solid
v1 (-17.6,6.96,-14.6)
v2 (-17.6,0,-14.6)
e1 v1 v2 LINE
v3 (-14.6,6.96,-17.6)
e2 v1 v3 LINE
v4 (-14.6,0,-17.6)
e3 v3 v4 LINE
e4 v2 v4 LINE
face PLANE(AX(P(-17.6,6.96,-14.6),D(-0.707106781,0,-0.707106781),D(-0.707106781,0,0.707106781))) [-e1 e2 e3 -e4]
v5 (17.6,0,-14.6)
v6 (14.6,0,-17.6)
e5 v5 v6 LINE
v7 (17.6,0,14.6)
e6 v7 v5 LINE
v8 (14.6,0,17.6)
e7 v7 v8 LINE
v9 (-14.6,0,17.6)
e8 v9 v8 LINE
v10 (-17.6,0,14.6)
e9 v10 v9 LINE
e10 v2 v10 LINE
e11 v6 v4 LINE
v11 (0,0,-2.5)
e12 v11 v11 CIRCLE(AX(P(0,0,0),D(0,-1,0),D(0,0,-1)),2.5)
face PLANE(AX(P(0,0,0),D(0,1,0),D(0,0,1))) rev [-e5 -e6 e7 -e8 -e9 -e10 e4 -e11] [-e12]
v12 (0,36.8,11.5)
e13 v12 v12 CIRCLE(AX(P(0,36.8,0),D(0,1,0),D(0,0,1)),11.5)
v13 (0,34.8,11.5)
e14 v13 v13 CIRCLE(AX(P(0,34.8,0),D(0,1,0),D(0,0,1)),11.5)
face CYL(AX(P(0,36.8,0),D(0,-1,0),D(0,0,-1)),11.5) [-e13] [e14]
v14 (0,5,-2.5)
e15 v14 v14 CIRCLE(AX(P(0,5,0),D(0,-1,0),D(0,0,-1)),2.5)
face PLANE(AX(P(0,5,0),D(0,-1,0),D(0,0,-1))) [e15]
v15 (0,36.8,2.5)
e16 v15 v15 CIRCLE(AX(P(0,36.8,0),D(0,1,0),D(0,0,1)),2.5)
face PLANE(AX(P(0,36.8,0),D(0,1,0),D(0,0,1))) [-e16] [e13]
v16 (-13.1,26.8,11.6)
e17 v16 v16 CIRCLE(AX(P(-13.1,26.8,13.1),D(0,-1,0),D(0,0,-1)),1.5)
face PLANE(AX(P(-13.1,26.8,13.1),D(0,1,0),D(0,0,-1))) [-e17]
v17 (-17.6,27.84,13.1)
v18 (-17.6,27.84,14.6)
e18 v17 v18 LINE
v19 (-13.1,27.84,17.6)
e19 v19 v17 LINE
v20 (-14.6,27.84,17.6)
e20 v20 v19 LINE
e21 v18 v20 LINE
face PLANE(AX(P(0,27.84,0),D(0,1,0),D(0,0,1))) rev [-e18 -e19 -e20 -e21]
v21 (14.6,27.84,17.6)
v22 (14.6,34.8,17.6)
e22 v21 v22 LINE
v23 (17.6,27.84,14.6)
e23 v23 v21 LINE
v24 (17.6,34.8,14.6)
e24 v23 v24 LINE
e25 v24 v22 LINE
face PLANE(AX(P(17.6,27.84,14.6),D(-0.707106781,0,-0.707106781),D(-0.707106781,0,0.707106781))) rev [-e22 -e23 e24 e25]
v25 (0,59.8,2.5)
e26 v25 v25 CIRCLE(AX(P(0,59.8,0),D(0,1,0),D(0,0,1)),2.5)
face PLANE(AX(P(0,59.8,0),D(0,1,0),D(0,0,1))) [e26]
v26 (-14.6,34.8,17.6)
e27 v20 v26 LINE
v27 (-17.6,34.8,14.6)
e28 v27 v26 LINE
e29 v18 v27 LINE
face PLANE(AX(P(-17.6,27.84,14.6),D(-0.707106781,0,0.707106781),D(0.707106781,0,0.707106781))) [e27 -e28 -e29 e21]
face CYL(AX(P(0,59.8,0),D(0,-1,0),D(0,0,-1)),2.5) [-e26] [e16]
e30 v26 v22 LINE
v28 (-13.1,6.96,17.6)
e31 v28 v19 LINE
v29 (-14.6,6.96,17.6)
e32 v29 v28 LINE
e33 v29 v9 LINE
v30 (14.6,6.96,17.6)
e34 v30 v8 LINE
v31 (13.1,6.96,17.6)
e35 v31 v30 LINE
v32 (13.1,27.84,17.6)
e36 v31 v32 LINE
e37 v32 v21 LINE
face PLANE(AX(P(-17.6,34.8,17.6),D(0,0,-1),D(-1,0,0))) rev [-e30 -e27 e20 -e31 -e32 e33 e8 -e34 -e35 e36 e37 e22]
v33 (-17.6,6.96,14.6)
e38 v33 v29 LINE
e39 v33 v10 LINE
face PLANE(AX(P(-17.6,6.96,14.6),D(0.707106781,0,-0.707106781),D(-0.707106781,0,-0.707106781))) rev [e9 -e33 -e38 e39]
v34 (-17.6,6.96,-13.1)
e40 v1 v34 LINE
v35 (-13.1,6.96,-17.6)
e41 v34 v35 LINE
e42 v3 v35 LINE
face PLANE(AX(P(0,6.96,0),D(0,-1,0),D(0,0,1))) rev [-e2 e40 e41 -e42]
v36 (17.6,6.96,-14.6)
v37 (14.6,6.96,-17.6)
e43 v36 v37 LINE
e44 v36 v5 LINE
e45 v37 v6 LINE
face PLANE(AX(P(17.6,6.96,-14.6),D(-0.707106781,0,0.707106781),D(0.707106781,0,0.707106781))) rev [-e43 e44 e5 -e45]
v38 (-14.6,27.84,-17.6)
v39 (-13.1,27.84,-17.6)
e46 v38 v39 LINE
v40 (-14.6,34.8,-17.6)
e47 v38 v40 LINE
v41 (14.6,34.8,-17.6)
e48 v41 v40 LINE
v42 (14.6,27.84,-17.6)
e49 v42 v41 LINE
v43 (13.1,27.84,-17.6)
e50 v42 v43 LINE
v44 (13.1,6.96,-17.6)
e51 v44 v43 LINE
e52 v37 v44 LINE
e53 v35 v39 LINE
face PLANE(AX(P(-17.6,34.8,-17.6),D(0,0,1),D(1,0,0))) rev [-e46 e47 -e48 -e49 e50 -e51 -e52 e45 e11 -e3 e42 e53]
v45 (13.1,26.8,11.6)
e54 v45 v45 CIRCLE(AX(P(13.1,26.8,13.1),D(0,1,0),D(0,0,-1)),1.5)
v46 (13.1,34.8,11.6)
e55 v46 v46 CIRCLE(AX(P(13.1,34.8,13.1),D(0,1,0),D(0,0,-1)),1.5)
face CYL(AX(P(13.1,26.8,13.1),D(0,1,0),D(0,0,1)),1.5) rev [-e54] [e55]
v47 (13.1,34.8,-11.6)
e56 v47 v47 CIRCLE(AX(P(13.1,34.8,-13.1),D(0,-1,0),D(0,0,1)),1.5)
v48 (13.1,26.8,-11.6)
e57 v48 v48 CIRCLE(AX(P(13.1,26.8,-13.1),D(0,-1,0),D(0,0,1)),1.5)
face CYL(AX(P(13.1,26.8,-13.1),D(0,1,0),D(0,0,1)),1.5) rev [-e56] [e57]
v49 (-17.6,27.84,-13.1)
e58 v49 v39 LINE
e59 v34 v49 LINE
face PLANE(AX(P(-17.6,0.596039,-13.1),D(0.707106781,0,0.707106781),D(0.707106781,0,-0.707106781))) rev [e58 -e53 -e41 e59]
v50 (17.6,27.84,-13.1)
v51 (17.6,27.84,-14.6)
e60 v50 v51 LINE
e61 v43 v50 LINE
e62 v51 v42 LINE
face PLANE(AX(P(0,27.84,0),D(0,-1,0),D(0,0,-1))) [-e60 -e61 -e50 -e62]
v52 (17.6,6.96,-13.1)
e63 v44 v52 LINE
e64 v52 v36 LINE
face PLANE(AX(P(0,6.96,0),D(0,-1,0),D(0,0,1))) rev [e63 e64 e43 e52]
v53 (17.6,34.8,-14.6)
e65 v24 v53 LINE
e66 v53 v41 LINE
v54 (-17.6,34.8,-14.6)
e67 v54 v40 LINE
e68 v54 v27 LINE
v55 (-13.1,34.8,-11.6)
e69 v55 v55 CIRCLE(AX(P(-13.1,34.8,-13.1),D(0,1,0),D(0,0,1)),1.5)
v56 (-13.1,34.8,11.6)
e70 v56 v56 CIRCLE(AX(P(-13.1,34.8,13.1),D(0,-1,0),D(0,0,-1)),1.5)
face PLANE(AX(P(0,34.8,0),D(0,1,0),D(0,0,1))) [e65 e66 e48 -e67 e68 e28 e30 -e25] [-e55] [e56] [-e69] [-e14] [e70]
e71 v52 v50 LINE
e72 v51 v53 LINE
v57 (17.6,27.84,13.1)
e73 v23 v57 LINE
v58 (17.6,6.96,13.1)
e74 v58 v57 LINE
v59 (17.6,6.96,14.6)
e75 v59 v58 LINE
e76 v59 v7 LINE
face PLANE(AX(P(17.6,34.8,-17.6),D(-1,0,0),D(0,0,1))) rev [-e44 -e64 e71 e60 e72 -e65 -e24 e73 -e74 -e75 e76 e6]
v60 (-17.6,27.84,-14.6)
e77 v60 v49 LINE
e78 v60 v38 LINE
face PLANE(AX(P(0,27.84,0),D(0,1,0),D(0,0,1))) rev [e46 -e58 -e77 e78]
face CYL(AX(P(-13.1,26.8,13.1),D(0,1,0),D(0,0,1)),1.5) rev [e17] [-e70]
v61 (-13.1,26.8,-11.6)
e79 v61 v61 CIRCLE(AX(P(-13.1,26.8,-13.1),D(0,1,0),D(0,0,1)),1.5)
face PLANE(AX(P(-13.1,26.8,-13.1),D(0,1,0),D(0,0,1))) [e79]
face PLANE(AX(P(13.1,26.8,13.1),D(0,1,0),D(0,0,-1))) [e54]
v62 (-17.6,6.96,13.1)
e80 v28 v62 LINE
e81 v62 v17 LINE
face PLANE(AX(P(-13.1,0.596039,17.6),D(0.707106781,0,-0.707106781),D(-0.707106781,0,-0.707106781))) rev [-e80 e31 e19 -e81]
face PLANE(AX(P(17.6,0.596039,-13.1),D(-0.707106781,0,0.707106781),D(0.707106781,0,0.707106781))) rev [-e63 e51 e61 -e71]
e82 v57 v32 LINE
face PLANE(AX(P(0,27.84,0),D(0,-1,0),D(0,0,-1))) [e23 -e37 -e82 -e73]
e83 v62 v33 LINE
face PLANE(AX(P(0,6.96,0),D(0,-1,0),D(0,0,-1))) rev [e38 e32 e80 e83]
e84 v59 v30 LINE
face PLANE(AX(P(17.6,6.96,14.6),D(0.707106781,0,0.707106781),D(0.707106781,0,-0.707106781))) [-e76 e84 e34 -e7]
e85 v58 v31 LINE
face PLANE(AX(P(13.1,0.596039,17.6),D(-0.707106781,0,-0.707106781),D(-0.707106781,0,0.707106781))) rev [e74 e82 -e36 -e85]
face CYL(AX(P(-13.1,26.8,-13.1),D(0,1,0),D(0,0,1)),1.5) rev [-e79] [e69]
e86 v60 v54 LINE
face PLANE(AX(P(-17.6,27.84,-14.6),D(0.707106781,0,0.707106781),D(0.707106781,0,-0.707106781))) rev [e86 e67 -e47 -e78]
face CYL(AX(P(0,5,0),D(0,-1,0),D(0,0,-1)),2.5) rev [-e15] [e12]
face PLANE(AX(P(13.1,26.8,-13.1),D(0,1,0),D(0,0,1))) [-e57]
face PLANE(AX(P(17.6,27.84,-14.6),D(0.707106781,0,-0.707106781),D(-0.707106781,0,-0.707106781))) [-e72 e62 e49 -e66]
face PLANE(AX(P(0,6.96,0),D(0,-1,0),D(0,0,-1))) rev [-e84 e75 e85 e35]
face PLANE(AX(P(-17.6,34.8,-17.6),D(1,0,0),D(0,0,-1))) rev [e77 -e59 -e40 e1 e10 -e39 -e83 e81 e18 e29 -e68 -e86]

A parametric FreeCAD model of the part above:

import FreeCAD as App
import Part
import Sketcher


def add_polygon(sketch, points):
    """Adds a closed chain of lines whose ends are joined by coincident constraints."""
    first, n = sketch.GeometryCount, len(points)
    for a, b in zip(points, points[1:] + points[:1]):
        sketch.addGeometry(Part.LineSegment(App.Vector(*a, 0), App.Vector(*b, 0)), False)
    for i in range(n):
        sketch.addConstraint(Sketcher.Constraint("Coincident", first + i, 2, first + (i + 1) % n, 1))

doc = App.newDocument("Part")
body = doc.addObject("PartDesign::Body", "Body")

sketch1 = body.newObject("Sketcher::SketchObject", "Sketch")
sketch1.AttachmentSupport = (doc.getObject("XZ_Plane"), [""])
sketch1.MapMode = "FlatFace"
add_polygon(sketch1, [(-18, -18), (-18, 18), (18, 18), (18, -18)])
sketch1.addConstraint([
    Sketcher.Constraint("Vertical", 0),
    Sketcher.Constraint("Horizontal", 1),
    Sketcher.Constraint("Vertical", 2),
    Sketcher.Constraint("Horizontal", 3),
    Sketcher.Constraint("Symmetric", 0, 2, 2, 2, -1, 1),
    Sketcher.Constraint("Equal", 3, 0),
    Sketcher.Constraint("DistanceX", 1, 1, 1, 2, 35.2),
])
pad1 = body.newObject("PartDesign::Pad", "Pad")
pad1.Profile = sketch1
pad1.Length = 34.8
pad1.Reversed = True

sketch2 = body.newObject("Sketcher::SketchObject", "Sketch001")
sketch2.AttachmentSupport = (doc.getObject("XZ_Plane"), [""])
sketch2.MapMode = "FlatFace"
sketch2.AttachmentOffset = App.Placement(App.Vector(0, 0, -34.8), App.Rotation())
sketch2.addGeometry(Part.Circle(App.Vector(0, 0, 0), App.Vector(0, 0, 1), 12), False)
sketch2.addConstraint([
    Sketcher.Constraint("Coincident", 0, 3, -1, 1),
    Sketcher.Constraint("Diameter", 0, 23.0),
])
pad2 = body.newObject("PartDesign::Pad", "Pad001")
pad2.Profile = sketch2
pad2.Length = 2
pad2.Reversed = True

sketch3 = body.newObject("Sketcher::SketchObject", "Sketch002")
sketch3.AttachmentSupport = (doc.getObject("XZ_Plane"), [""])
sketch3.MapMode = "FlatFace"
sketch3.AttachmentOffset = App.Placement(App.Vector(0, 0, -36.8), App.Rotation())
sketch3.addGeometry(Part.Circle(App.Vector(0, 0, 0), App.Vector(0, 0, 1), 2.5), False)
sketch3.addConstraint([
    Sketcher.Constraint("Coincident", 0, 3, -1, 1),
    Sketcher.Constraint("Diameter", 0, 5.0),
])
pad3 = body.newObject("PartDesign::Pad", "Pad002")
pad3.Profile = sketch3
pad3.Length = 23
pad3.Reversed = True

sketch4 = body.newObject("Sketcher::SketchObject", "Sketch003")
sketch4.AttachmentSupport = (doc.getObject("XZ_Plane"), [""])
sketch4.MapMode = "FlatFace"
sketch4.AttachmentOffset = App.Placement(App.Vector(0, 0, -34.8), App.Rotation())
sketch4.addGeometry(Part.Circle(App.Vector(-13.1, -13.1, 0), App.Vector(0, 0, 1), 1.5), False)
sketch4.addConstraint([
    Sketcher.Constraint("Diameter", 0, 3.0),
    Sketcher.Constraint("DistanceX", 0, 3, -1, 1, 13.1),
    Sketcher.Constraint("DistanceY", 0, 3, -1, 1, 13.1),
])
pocket1 = body.newObject("PartDesign::Pocket", "Pocket")
pocket1.Profile = sketch4
pocket1.Length = 8
pocket1.Reversed = True
doc.recompute()

mirrored = body.newObject("PartDesign::Mirrored", "Mirrored")
mirrored.Originals = [pocket1]
mirrored.MirrorPlane = (doc.getObject("YZ_Plane"), [""])
body.Tip = mirrored
doc.recompute()

mirrored2 = body.newObject("PartDesign::Mirrored", "Mirrored001")
mirrored2.Originals = [pocket1]
mirrored2.MirrorPlane = (doc.getObject("XY_Plane"), [""])
body.Tip = mirrored2

sketch5 = body.newObject("Sketcher::SketchObject", "Sketch004")
sketch5.AttachmentSupport = (doc.getObject("XZ_Plane"), [""])
sketch5.MapMode = "FlatFace"
sketch5.AttachmentOffset = App.Placement(App.Vector(0, 0, -34.8), App.Rotation())
sketch5.addGeometry(Part.Circle(App.Vector(13.1, 13.1, 0), App.Vector(0, 0, 1), 1.5), False)
sketch5.addConstraint([
    Sketcher.Constraint("Diameter", 0, 3.0),
    Sketcher.Constraint("DistanceX", -1, 1, 0, 3, 13.1),
    Sketcher.Constraint("DistanceY", -1, 1, 0, 3, 13.1),
])
pocket2 = body.newObject("PartDesign::Pocket", "Pocket001")
pocket2.Profile = sketch5
pocket2.Length = 8
pocket2.Reversed = True

sketch6 = body.newObject("Sketcher::SketchObject", "Sketch005")
sketch6.AttachmentSupport = (doc.getObject("XZ_Plane"), [""])
sketch6.MapMode = "FlatFace"
sketch6.AttachmentOffset = App.Placement(App.Vector(0, 0, -34.8), App.Rotation())
add_polygon(sketch6, [(-14.6, -17.6), (-17.6, -17.6), (-17.6, -14.6)])
sketch6.addConstraint([
    Sketcher.Constraint("Horizontal", 0),
    Sketcher.Constraint("Vertical", 1),
    Sketcher.Constraint("Equal", 0, 1),
    Sketcher.Constraint("DistanceX", 0, 2, 0, 1, 3.0),
    Sketcher.Constraint("DistanceX", 0, 2, -1, 1, 17.6),
    Sketcher.Constraint("DistanceY", 0, 2, -1, 1, 17.6),
])
pocket3 = body.newObject("PartDesign::Pocket", "Pocket002")
pocket3.Profile = sketch6
pocket3.Length = 6.96
pocket3.Reversed = True
doc.recompute()

mirrored3 = body.newObject("PartDesign::Mirrored", "Mirrored002")
mirrored3.Originals = [pocket3]
mirrored3.MirrorPlane = (doc.getObject("YZ_Plane"), [""])
body.Tip = mirrored3
doc.recompute()

mirrored4 = body.newObject("PartDesign::Mirrored", "Mirrored003")
mirrored4.Originals = [pocket3]
mirrored4.MirrorPlane = (doc.getObject("XY_Plane"), [""])
body.Tip = mirrored4

sketch7 = body.newObject("Sketcher::SketchObject", "Sketch006")
sketch7.AttachmentSupport = (doc.getObject("XZ_Plane"), [""])
sketch7.MapMode = "FlatFace"
sketch7.AttachmentOffset = App.Placement(App.Vector(0, 0, -34.8), App.Rotation())
add_polygon(sketch7, [(14.6, 17.6), (17.6, 17.6), (17.6, 14.6)])
sketch7.addConstraint([
    Sketcher.Constraint("Horizontal", 0),
    Sketcher.Constraint("Vertical", 1),
    Sketcher.Constraint("Equal", 0, 1),
    Sketcher.Constraint("DistanceX", 0, 1, 0, 2, 3.0),
    Sketcher.Constraint("DistanceX", -1, 1, 0, 2, 17.6),
    Sketcher.Constraint("DistanceY", -1, 1, 0, 2, 17.6),
])
pocket4 = body.newObject("PartDesign::Pocket", "Pocket003")
pocket4.Profile = sketch7
pocket4.Length = 6.96
pocket4.Reversed = True

sketch8 = body.newObject("Sketcher::SketchObject", "Sketch007")
sketch8.AttachmentSupport = (doc.getObject("XZ_Plane"), [""])
sketch8.MapMode = "FlatFace"
add_polygon(sketch8, [(-14.6, 17.6), (-17.6, 17.6), (-17.6, 14.6)])
sketch8.addConstraint([
    Sketcher.Constraint("Horizontal", 0),
    Sketcher.Constraint("Vertical", 1),
    Sketcher.Constraint("Equal", 0, 1),
    Sketcher.Constraint("DistanceX", 0, 2, 0, 1, 3.0),
    Sketcher.Constraint("DistanceX", 0, 2, -1, 1, 17.6),
    Sketcher.Constraint("DistanceY", -1, 1, 0, 2, 17.6),
])
pocket5 = body.newObject("PartDesign::Pocket", "Pocket004")
pocket5.Profile = sketch8
pocket5.Length = 6.96
doc.recompute()

mirrored5 = body.newObject("PartDesign::Mirrored", "Mirrored004")
mirrored5.Originals = [pocket5]
mirrored5.MirrorPlane = (doc.getObject("YZ_Plane"), [""])
body.Tip = mirrored5
doc.recompute()

mirrored6 = body.newObject("PartDesign::Mirrored", "Mirrored005")
mirrored6.Originals = [pocket5]
mirrored6.MirrorPlane = (doc.getObject("XY_Plane"), [""])
body.Tip = mirrored6

sketch9 = body.newObject("Sketcher::SketchObject", "Sketch008")
sketch9.AttachmentSupport = (doc.getObject("XZ_Plane"), [""])
sketch9.MapMode = "FlatFace"
add_polygon(sketch9, [(14.6, -17.6), (17.6, -17.6), (17.6, -14.6)])
sketch9.addConstraint([
    Sketcher.Constraint("Horizontal", 0),
    Sketcher.Constraint("Vertical", 1),
    Sketcher.Constraint("Equal", 0, 1),
    Sketcher.Constraint("DistanceX", 0, 1, 0, 2, 3.0),
    Sketcher.Constraint("DistanceX", -1, 1, 0, 2, 17.6),
    Sketcher.Constraint("DistanceY", 0, 2, -1, 1, 17.6),
])
pocket6 = body.newObject("PartDesign::Pocket", "Pocket005")
pocket6.Profile = sketch9
pocket6.Length = 6.96

sketch10 = body.newObject("Sketcher::SketchObject", "Sketch009")
sketch10.AttachmentSupport = (doc.getObject("XZ_Plane"), [""])
sketch10.MapMode = "FlatFace"
sketch10.addGeometry(Part.Circle(App.Vector(0, 0, 0), App.Vector(0, 0, 1), 2.5), False)
sketch10.addConstraint([
    Sketcher.Constraint("Coincident", 0, 3, -1, 1),
    Sketcher.Constraint("Diameter", 0, 5.0),
])
pocket7 = body.newObject("PartDesign::Pocket", "Pocket006")
pocket7.Profile = sketch10
pocket7.Length = 5

sketch11 = body.newObject("Sketcher::SketchObject", "Sketch010")
sketch11.AttachmentSupport = (doc.getObject("XZ_Plane"), [""])
sketch11.MapMode = "FlatFace"
sketch11.AttachmentOffset = App.Placement(App.Vector(0, 0, -27.84), App.Rotation())
add_polygon(sketch11, [(-13.1, -17.6), (-17.6, -17.6), (-17.6, -13.1)])
sketch11.addConstraint([
    Sketcher.Constraint("Horizontal", 0),
    Sketcher.Constraint("Vertical", 1),
    Sketcher.Constraint("Equal", 0, 1),
    Sketcher.Constraint("DistanceX", 0, 2, 0, 1, 4.5),
    Sketcher.Constraint("DistanceX", 0, 2, -1, 1, 17.6),
    Sketcher.Constraint("DistanceY", 0, 2, -1, 1, 17.6),
])
pocket8 = body.newObject("PartDesign::Pocket", "Pocket007")
pocket8.Profile = sketch11
pocket8.Length = 20.88
pocket8.Reversed = True

sketch12 = body.newObject("Sketcher::SketchObject", "Sketch011")
sketch12.AttachmentSupport = (doc.getObject("XZ_Plane"), [""])
sketch12.MapMode = "FlatFace"
sketch12.AttachmentOffset = App.Placement(App.Vector(0, 0, -27.84), App.Rotation())
add_polygon(sketch12, [(17.6, -17.6), (13.1, -17.6), (17.6, -13.1)])
sketch12.addConstraint([
    Sketcher.Constraint("Horizontal", 0),
    Sketcher.Constraint("Vertical", 2),
    Sketcher.Constraint("Equal", 0, 2),
    Sketcher.Constraint("DistanceX", 0, 2, 0, 1, 4.5),
    Sketcher.Constraint("DistanceX", -1, 1, 0, 2, 13.1),
    Sketcher.Constraint("DistanceY", 0, 2, -1, 1, 17.6),
])
pocket9 = body.newObject("PartDesign::Pocket", "Pocket008")
pocket9.Profile = sketch12
pocket9.Length = 20.88
pocket9.Reversed = True

sketch13 = body.newObject("Sketcher::SketchObject", "Sketch012")
sketch13.AttachmentSupport = (doc.getObject("XZ_Plane"), [""])
sketch13.MapMode = "FlatFace"
sketch13.AttachmentOffset = App.Placement(App.Vector(0, 0, -27.84), App.Rotation())
add_polygon(sketch13, [(17.6, 17.6), (17.6, 13.1), (13.1, 17.6)])
sketch13.addConstraint([
    Sketcher.Constraint("Vertical", 0),
    Sketcher.Constraint("Horizontal", 2),
    Sketcher.Constraint("Equal", 2, 0),
    Sketcher.Constraint("DistanceX", 2, 1, 2, 2, 4.5),
    Sketcher.Constraint("DistanceX", -1, 1, 0, 2, 17.6),
    Sketcher.Constraint("DistanceY", -1, 1, 0, 2, 13.1),
])
pocket10 = body.newObject("PartDesign::Pocket", "Pocket009")
pocket10.Profile = sketch13
pocket10.Length = 20.88
pocket10.Reversed = True

sketch14 = body.newObject("Sketcher::SketchObject", "Sketch013")
sketch14.AttachmentSupport = (doc.getObject("XZ_Plane"), [""])
sketch14.MapMode = "FlatFace"
sketch14.AttachmentOffset = App.Placement(App.Vector(0, 0, -27.84), App.Rotation())
add_polygon(sketch14, [(-17.6, 13.1), (-17.6, 17.6), (-13.1, 17.6)])
sketch14.addConstraint([
    Sketcher.Constraint("Vertical", 0),
    Sketcher.Constraint("Horizontal", 1),
    Sketcher.Constraint("Equal", 1, 0),
    Sketcher.Constraint("DistanceX", 1, 1, 1, 2, 4.5),
    Sketcher.Constraint("DistanceX", 0, 2, -1, 1, 17.6),
    Sketcher.Constraint("DistanceY", -1, 1, 0, 2, 17.6),
])
pocket11 = body.newObject("PartDesign::Pocket", "Pocket010")
pocket11.Profile = sketch14
pocket11.Length = 20.88
pocket11.Reversed = True

doc.recompute()
